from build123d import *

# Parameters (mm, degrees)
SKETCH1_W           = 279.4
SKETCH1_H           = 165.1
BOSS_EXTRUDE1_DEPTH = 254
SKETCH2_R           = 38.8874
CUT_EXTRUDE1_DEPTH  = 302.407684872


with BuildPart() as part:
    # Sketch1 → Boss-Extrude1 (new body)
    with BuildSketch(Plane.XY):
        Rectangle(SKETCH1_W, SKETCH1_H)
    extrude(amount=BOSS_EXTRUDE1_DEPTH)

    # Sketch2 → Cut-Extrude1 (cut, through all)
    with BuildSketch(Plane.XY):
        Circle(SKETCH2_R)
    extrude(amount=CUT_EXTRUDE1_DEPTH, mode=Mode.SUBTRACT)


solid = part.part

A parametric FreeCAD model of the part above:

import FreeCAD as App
import Part
import Sketcher

V = App.Vector
Q = App.Units.Quantity

doc = App.newDocument("Part")
params = doc.addObject("Spreadsheet::Sheet", "Params")
for row, (alias, value) in enumerate([
    ("sketch1_width", "11 in"),
    ("sketch1_height", "6.5 in"),
    ("pad1_length", "10 in"),
    ("sketch2_diameter", "3.062 in"),
], start=1):
    params.set(f"A{row}", alias)
    params.set(f"B{row}", "=" + value)
    params.setAlias(f"B{row}", alias)

body = doc.addObject("PartDesign::Body", "Body")

sketch1 = body.newObject("Sketcher::SketchObject", "Sketch")
sketch1.AttachmentSupport = (doc.getObject("XY_Plane"), [""])
sketch1.MapMode = "FlatFace"
sketch1.addGeometry(Part.LineSegment(V(-140, 83, 0), V(-140, -83, 0)), False)
sketch1.addGeometry(Part.LineSegment(V(-140, -83, 0), V(140, -83, 0)), False)
sketch1.addGeometry(Part.LineSegment(V(140, -83, 0), V(140, 83, 0)), False)
sketch1.addGeometry(Part.LineSegment(V(140, 83, 0), V(-140, 83, 0)), False)
sketch1.addConstraint(Sketcher.Constraint("Coincident", 0, 2, 1, 1))
sketch1.addConstraint(Sketcher.Constraint("Coincident", 1, 2, 2, 1))
sketch1.addConstraint(Sketcher.Constraint("Coincident", 2, 2, 3, 1))
sketch1.addConstraint(Sketcher.Constraint("Coincident", 3, 2, 0, 1))
sketch1.addConstraint(Sketcher.Constraint("Vertical", 0))
sketch1.addConstraint(Sketcher.Constraint("Horizontal", 1))
sketch1.addConstraint(Sketcher.Constraint("Vertical", 2))
sketch1.addConstraint(Sketcher.Constraint("Horizontal", 3))
sketch1.addConstraint(Sketcher.Constraint("Symmetric", 0, 2, 2, 2, -1, 1))
sketch1.addConstraint(Sketcher.Constraint("DistanceX", 1, 1, 1, 2, Q("11 in")))
sketch1.addConstraint(Sketcher.Constraint("DistanceY", 0, 2, 0, 1, Q("6.5 in")))
sketch1.setExpression("Constraints[9]", "Params.sketch1_width")
sketch1.setExpression("Constraints[10]", "Params.sketch1_height")
pad1 = body.newObject("PartDesign::Pad", "Pad")
pad1.Profile = sketch1
pad1.setExpression("Length", "Params.pad1_length")

sketch2 = body.newObject("Sketcher::SketchObject", "Sketch001")
sketch2.AttachmentSupport = (doc.getObject("XY_Plane"), [""])
sketch2.MapMode = "FlatFace"
sketch2.addGeometry(Part.Circle(V(0, 0, 0), V(0, 0, 1), 39), False)
sketch2.addConstraint(Sketcher.Constraint("Coincident", 0, 3, -1, 1))
sketch2.addConstraint(Sketcher.Constraint("Diameter", 0, Q("3.062 in")))
sketch2.setExpression("Constraints[1]", "Params.sketch2_diameter")
pocket1 = body.newObject("PartDesign::Pocket", "Pocket")
pocket1.Profile = sketch2
pocket1.Type = "ThroughAll"
pocket1.Reversed = True

doc.recompute()
